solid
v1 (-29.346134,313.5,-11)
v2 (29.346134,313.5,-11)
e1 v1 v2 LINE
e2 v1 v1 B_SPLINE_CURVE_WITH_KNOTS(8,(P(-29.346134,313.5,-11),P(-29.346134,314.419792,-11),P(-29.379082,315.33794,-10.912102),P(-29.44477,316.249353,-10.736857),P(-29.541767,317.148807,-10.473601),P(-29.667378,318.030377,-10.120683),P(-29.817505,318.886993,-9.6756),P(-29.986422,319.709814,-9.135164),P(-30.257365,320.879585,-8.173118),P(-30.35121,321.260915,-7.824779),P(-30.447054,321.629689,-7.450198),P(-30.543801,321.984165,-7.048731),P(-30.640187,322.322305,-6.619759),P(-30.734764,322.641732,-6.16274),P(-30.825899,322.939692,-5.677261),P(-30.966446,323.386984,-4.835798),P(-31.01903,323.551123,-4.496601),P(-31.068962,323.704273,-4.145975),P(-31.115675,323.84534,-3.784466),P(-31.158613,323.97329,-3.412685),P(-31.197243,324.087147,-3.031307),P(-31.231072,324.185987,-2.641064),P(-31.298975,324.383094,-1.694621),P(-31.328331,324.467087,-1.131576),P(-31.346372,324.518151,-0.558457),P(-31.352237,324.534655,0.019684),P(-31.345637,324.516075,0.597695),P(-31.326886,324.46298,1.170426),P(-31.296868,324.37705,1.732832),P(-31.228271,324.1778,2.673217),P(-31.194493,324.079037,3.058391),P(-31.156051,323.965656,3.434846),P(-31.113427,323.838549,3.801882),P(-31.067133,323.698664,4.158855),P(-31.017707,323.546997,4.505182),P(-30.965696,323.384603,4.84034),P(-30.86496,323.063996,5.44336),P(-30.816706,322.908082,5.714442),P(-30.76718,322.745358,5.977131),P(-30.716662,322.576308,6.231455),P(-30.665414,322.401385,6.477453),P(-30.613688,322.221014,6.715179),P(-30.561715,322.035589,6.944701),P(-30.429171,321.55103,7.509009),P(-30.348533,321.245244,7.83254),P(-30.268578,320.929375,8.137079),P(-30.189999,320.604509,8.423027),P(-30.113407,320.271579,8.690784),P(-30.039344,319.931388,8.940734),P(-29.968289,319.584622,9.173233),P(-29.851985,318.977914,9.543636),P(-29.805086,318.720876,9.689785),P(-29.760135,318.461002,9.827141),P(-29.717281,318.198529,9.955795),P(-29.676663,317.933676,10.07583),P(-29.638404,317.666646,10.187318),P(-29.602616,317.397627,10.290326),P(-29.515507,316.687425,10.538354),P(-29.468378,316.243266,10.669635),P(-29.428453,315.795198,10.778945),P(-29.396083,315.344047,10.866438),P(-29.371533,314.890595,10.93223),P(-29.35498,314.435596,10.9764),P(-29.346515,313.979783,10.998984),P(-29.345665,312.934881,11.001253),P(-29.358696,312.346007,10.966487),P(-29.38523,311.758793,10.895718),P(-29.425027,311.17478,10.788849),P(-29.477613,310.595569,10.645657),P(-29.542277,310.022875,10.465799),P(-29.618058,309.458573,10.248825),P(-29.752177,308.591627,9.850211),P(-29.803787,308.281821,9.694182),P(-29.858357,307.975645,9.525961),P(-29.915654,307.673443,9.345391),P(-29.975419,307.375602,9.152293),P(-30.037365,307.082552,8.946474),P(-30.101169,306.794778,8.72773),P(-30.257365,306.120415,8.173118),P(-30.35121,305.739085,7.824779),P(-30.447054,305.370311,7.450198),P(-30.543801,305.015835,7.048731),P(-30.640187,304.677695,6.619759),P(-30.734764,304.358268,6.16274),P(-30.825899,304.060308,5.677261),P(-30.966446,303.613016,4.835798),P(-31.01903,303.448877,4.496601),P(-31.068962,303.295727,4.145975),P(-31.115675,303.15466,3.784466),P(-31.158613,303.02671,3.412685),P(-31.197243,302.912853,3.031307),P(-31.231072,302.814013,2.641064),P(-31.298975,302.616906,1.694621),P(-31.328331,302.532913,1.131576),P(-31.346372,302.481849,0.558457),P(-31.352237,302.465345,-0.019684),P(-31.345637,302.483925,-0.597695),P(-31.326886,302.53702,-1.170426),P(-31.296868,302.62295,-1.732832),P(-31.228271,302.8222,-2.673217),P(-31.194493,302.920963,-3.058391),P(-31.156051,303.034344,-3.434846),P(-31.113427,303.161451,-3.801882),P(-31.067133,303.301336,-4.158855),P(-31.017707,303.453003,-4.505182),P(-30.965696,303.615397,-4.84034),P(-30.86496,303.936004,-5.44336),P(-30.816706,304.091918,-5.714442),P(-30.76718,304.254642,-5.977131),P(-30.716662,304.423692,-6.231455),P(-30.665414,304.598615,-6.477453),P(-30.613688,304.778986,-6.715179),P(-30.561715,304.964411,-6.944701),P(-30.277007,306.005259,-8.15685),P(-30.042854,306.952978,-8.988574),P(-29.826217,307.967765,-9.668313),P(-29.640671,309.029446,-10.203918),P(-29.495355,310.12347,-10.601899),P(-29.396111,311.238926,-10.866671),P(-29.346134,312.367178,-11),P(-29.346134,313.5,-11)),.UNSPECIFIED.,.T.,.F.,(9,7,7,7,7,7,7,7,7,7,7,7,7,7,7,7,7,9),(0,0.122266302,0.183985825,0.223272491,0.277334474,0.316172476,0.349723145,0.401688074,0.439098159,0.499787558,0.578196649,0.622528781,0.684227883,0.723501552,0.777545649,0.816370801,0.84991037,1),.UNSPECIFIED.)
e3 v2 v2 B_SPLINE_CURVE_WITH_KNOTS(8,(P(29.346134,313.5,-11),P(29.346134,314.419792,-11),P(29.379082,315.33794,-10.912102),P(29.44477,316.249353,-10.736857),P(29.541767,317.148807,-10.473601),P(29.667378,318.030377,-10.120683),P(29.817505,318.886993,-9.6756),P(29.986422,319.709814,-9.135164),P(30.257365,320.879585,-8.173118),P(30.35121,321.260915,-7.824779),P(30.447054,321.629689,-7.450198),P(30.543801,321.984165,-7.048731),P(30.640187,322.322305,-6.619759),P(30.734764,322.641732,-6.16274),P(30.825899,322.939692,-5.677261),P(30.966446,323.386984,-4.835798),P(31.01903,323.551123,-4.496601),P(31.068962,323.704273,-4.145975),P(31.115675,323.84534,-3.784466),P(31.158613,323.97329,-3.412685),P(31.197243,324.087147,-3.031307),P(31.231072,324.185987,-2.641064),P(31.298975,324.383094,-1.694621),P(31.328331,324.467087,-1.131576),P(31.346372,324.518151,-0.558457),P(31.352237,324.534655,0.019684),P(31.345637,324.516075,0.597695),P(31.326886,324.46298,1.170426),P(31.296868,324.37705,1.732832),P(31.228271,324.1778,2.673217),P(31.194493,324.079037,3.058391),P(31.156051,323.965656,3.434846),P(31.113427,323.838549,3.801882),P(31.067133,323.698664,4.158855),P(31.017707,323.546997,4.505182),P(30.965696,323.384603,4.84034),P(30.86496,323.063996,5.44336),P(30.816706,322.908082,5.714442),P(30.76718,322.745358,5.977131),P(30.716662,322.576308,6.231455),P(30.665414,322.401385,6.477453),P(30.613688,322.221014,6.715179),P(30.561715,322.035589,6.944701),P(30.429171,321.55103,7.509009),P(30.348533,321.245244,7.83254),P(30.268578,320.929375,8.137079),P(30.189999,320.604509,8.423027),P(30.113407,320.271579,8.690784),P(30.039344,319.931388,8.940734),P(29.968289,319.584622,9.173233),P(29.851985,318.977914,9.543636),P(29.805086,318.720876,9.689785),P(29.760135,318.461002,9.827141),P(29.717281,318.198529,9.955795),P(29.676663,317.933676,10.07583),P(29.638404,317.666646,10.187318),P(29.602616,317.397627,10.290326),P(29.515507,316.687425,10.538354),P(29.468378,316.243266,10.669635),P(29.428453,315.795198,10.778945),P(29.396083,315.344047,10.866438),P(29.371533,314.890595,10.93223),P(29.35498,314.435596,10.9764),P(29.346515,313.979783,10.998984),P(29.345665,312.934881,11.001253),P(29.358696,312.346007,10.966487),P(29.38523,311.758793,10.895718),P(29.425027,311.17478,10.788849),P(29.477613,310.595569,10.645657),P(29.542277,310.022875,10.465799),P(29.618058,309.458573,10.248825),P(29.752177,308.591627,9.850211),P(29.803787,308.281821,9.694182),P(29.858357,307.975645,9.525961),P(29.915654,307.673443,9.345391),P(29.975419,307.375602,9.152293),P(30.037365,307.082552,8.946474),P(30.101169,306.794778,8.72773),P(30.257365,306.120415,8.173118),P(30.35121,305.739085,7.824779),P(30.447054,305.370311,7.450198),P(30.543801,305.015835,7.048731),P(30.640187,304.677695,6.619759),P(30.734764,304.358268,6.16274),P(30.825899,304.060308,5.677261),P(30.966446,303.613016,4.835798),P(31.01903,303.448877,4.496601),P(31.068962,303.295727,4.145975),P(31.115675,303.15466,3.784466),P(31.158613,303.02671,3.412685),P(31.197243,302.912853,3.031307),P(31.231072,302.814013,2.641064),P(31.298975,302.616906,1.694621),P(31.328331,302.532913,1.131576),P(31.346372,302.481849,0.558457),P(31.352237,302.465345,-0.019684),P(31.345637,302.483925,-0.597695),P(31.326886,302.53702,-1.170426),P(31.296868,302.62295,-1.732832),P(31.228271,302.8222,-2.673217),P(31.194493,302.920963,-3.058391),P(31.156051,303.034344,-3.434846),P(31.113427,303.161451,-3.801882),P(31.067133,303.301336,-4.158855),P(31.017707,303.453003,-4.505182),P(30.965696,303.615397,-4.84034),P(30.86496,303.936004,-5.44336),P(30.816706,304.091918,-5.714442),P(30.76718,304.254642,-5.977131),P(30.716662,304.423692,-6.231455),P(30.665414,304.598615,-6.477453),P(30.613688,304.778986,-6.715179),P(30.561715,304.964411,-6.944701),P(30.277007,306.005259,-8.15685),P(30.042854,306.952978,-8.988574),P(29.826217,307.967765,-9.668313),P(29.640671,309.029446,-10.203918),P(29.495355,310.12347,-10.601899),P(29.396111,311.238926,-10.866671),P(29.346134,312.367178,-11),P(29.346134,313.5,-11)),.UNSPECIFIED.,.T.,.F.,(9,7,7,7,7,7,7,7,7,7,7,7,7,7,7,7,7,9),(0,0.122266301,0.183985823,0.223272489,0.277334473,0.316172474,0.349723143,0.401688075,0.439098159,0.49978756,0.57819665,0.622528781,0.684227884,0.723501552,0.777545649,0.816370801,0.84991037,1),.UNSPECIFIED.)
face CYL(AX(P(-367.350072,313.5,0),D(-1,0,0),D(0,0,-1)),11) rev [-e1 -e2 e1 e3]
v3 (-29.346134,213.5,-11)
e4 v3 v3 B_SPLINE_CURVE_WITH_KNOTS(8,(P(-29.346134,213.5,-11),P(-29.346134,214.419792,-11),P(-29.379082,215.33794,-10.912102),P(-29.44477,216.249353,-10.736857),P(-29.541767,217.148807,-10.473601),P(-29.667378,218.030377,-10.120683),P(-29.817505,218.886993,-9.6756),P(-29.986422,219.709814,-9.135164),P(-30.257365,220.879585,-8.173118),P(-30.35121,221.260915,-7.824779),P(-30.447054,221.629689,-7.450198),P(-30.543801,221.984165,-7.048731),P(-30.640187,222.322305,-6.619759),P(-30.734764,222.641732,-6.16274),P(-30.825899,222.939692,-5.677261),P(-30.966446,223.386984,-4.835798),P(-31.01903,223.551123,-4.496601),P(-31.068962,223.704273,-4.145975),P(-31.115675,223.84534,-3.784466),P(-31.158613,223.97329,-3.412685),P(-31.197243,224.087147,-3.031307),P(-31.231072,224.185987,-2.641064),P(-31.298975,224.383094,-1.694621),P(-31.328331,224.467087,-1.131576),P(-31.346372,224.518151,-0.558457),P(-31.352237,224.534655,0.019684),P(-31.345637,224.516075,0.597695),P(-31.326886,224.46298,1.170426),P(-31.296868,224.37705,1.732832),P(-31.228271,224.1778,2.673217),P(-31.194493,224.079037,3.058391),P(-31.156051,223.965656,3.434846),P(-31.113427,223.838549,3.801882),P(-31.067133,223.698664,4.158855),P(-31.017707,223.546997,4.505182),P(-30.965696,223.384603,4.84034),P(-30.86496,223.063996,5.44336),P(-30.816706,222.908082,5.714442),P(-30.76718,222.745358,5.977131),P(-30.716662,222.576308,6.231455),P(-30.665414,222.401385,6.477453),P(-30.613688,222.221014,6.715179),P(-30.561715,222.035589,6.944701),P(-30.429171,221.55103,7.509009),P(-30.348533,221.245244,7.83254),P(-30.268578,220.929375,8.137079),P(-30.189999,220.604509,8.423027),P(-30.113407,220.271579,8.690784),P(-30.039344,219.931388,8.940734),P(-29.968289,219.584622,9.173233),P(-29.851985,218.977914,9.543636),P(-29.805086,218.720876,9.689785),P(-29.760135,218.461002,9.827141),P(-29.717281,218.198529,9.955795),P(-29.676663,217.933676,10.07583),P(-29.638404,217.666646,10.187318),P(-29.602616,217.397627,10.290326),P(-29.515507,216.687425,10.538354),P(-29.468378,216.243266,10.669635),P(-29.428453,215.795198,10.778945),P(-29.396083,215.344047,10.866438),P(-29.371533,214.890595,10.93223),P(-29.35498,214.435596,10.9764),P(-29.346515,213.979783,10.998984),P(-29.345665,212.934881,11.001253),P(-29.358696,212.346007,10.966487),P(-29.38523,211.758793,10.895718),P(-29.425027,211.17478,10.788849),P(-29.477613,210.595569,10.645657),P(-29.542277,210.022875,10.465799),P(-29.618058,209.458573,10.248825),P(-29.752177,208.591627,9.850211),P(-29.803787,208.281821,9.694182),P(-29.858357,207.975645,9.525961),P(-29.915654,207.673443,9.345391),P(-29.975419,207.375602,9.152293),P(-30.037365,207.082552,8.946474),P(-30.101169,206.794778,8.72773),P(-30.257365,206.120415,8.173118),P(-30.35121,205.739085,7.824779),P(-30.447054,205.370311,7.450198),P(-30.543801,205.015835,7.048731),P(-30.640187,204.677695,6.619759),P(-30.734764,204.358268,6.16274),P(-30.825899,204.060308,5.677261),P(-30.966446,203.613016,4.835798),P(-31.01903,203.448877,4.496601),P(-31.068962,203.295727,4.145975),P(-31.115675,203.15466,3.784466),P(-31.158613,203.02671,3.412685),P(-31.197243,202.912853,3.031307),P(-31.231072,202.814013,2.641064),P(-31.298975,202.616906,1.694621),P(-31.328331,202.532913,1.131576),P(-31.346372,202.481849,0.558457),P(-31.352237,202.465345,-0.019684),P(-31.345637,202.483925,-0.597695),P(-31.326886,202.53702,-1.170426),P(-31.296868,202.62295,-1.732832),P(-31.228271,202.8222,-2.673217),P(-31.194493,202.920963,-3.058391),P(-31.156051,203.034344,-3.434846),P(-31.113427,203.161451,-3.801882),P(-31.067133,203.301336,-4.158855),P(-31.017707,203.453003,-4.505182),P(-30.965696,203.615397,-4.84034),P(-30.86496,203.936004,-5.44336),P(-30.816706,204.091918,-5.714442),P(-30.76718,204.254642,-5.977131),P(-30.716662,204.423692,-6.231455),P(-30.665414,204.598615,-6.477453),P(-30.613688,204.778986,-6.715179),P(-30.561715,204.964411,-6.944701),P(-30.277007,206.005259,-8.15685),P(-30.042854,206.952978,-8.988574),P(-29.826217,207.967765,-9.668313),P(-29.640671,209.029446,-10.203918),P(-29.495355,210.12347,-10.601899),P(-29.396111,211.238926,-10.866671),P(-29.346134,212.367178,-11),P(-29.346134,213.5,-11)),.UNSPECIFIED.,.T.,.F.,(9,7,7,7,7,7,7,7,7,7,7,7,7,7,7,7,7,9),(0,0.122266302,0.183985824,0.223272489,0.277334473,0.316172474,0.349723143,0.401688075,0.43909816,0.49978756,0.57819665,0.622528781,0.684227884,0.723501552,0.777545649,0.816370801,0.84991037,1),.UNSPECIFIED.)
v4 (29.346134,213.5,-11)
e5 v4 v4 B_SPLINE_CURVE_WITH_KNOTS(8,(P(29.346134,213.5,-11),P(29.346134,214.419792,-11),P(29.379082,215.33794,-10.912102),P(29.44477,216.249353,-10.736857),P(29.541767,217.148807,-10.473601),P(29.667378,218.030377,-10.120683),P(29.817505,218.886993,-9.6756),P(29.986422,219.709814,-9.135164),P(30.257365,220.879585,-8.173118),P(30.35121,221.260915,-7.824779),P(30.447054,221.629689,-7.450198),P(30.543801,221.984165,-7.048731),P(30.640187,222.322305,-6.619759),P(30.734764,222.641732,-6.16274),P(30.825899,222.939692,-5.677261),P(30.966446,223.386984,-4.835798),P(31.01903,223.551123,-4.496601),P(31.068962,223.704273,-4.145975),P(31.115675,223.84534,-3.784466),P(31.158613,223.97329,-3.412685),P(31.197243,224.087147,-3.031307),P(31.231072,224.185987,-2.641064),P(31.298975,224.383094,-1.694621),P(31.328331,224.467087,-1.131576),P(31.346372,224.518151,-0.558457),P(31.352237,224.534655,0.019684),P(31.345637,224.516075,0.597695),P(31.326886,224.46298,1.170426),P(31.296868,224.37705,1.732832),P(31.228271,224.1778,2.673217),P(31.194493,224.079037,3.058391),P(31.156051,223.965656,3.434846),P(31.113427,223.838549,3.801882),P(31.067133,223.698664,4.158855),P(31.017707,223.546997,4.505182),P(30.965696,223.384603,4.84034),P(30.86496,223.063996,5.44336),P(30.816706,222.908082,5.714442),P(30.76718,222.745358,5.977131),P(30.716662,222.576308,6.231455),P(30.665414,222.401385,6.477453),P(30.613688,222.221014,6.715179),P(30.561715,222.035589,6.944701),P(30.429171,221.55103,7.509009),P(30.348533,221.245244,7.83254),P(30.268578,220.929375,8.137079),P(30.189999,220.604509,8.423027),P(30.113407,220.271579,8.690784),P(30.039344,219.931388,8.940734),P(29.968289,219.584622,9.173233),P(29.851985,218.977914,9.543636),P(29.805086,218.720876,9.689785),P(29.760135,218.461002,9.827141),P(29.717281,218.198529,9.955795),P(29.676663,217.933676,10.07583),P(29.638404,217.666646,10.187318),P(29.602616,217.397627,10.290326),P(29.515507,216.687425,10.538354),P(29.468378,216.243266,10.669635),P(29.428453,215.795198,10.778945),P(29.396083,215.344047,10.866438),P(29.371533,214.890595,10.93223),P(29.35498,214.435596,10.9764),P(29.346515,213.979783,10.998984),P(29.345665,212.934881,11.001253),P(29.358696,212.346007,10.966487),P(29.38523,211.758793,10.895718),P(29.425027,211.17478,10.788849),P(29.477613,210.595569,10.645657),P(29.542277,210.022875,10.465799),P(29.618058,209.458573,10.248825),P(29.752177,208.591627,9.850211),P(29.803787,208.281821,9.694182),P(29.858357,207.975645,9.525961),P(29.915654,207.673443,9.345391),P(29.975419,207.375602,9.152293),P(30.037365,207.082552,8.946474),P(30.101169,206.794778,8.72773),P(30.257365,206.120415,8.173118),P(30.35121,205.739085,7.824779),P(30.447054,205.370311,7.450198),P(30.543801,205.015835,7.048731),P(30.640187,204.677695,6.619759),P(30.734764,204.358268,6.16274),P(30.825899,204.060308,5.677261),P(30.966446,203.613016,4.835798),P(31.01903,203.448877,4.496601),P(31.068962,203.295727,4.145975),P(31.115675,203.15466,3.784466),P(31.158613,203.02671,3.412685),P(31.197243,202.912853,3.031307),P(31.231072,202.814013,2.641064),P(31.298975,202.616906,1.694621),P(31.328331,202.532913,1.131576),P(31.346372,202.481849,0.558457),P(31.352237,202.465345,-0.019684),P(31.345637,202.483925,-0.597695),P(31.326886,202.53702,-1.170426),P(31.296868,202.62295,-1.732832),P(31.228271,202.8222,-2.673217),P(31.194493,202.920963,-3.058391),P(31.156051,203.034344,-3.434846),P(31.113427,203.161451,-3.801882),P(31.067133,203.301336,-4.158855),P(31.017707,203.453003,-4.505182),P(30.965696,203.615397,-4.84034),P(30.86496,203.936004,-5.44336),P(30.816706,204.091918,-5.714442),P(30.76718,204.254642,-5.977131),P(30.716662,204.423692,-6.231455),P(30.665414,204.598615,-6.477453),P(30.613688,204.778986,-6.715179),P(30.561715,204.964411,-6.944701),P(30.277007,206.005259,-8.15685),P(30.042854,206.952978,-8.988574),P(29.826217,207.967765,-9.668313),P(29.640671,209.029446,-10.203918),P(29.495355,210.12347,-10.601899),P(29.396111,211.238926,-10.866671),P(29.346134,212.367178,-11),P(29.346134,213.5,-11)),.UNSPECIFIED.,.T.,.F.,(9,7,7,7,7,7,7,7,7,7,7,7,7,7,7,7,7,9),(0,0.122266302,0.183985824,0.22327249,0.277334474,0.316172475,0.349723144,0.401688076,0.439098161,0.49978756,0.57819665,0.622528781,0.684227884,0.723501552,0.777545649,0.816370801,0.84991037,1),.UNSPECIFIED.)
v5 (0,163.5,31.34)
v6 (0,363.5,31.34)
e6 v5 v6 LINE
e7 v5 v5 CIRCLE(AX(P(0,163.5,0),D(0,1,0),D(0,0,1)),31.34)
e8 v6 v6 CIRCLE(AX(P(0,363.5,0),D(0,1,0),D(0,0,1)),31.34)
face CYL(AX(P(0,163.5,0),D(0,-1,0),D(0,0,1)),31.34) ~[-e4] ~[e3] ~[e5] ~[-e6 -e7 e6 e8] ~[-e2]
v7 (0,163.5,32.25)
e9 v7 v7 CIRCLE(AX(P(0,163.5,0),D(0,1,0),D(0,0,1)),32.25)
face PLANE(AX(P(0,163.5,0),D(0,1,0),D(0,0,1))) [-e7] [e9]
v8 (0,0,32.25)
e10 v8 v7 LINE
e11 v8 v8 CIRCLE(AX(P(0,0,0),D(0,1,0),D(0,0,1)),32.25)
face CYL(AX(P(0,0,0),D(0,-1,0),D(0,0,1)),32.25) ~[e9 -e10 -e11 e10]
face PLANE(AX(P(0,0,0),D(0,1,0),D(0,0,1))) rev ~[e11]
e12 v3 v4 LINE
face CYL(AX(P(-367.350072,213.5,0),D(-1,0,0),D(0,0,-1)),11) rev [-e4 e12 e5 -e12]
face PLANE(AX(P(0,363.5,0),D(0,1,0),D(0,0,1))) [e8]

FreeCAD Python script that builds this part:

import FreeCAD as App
import Part
import Sketcher
Q = App.Units.Quantity

doc = App.newDocument("Part")
body = doc.addObject("PartDesign::Body", "Body")

sketch1 = body.newObject("Sketcher::SketchObject", "Sketch")
sketch1.AttachmentSupport = (doc.getObject("XZ_Plane"), [""])
sketch1.MapMode = "FlatFace"
sketch1.addGeometry(Part.Circle(App.Vector(0, 0, 0), App.Vector(0, 0, 1), 32), False)
sketch1.addConstraint([
    Sketcher.Constraint("Coincident", 0, 3, -1, 1),
    Sketcher.Constraint("Diameter", 0, Q("64.5 mm")),
])
pad1 = body.newObject("PartDesign::Pad", "Pad")
pad1.Profile = sketch1
pad1.Length = 163.5
pad1.Reversed = True

sketch2 = body.newObject("Sketcher::SketchObject", "Sketch001")
sketch2.AttachmentSupport = (doc.getObject("XZ_Plane"), [""])
sketch2.MapMode = "FlatFace"
sketch2.AttachmentOffset = App.Placement(App.Vector(0, 0, -163.5), App.Rotation())
sketch2.addGeometry(Part.Circle(App.Vector(0, 0, 0), App.Vector(0, 0, 1), 31), False)
sketch2.addConstraint([
    Sketcher.Constraint("Coincident", 0, 3, -1, 1),
    Sketcher.Constraint("Diameter", 0, Q("62.68 mm")),
])
pad2 = body.newObject("PartDesign::Pad", "Pad001")
pad2.Profile = sketch2
pad2.Length = 200
pad2.Reversed = True

sketch3 = body.newObject("Sketcher::SketchObject", "Sketch002")
sketch3.AttachmentSupport = (doc.getObject("YZ_Plane"), [""])
sketch3.MapMode = "FlatFace"
sketch3.addGeometry([
    Part.Circle(App.Vector(214, 0, 0), App.Vector(0, 0, 1), 11),
    Part.Circle(App.Vector(314, 0, 0), App.Vector(0, 0, 1), 11),
], False)
sketch3.addConstraint([
    Sketcher.Constraint("Equal", 0, 1),
    Sketcher.Constraint("PointOnObject", 0, 3, -1),
    Sketcher.Constraint("PointOnObject", 1, 3, -1),
    Sketcher.Constraint("Diameter", 0, Q("22 mm")),
    Sketcher.Constraint("DistanceX", 0, 3, 1, 3, Q("100 mm")),
    Sketcher.Constraint("DistanceX", -1, 1, 0, 3, Q("213.5 mm")),
])
pocket1 = body.newObject("PartDesign::Pocket", "Pocket")
pocket1.Profile = sketch3
pocket1.Type = "ThroughAll"
pocket1.Midplane = True

doc.recompute()
